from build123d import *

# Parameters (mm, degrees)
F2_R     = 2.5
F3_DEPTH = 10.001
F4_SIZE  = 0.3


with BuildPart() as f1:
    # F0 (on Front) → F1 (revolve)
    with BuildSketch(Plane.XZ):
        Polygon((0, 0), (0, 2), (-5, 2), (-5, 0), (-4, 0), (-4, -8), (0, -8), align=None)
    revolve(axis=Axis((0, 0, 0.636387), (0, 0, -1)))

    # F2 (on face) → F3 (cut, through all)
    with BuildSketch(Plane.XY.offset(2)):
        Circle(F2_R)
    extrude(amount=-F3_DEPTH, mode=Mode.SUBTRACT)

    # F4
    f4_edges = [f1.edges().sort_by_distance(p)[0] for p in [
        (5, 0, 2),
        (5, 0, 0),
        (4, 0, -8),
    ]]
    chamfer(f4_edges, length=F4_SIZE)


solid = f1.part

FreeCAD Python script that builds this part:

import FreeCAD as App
import Part
import Sketcher
from FreeCAD import Vector


def edges_at(feature, points):
    """Names of the edges that pass closest to the given points."""
    edges = feature.Shape.Edges
    near = lambda p: min(range(len(edges)), key=lambda i: edges[i].distToShape(Part.Vertex(*p))[0])
    return sorted({f"Edge{near(p) + 1}" for p in points})

doc = App.newDocument("Part")
body = doc.addObject("PartDesign::Body", "Body")

# Sketch on XZ plane
sketch1 = body.newObject("Sketcher::SketchObject", "Sketch")
sketch1.AttachmentSupport = (doc.getObject("XZ_Plane"), [""])
sketch1.MapMode = "FlatFace"
sketch1.addGeometry(Part.LineSegment(Vector(0, 2, 0), Vector(-5, 2, 0)), False)
sketch1.addGeometry(Part.LineSegment(Vector(-5, 2, 0), Vector(-5, 0, 0)), False)
sketch1.addGeometry(Part.LineSegment(Vector(-5, 0, 0), Vector(-4, 0, 0)), False)
sketch1.addGeometry(Part.LineSegment(Vector(-4, 0, 0), Vector(-4, -8, 0)), False)
sketch1.addGeometry(Part.LineSegment(Vector(-4, -8, 0), Vector(0, -8, 0)), False)
sketch1.addGeometry(Part.LineSegment(Vector(0, -8, 0), Vector(0, 2, 0)), False)
sketch1.addConstraint(Sketcher.Constraint("Coincident", 0, 2, 1, 1))
sketch1.addConstraint(Sketcher.Constraint("Coincident", 1, 2, 2, 1))
sketch1.addConstraint(Sketcher.Constraint("Coincident", 2, 2, 3, 1))
sketch1.addConstraint(Sketcher.Constraint("Coincident", 3, 2, 4, 1))
sketch1.addConstraint(Sketcher.Constraint("Coincident", 4, 2, 5, 1))
sketch1.addConstraint(Sketcher.Constraint("Coincident", 5, 2, 0, 1))
sketch1.addConstraint(Sketcher.Constraint("Horizontal", 0))
sketch1.addConstraint(Sketcher.Constraint("Vertical", 1))
sketch1.addConstraint(Sketcher.Constraint("Horizontal", 2))
sketch1.addConstraint(Sketcher.Constraint("Vertical", 3))
sketch1.addConstraint(Sketcher.Constraint("Horizontal", 4))
sketch1.addConstraint(Sketcher.Constraint("Vertical", 5))
sketch1.addConstraint(Sketcher.Constraint("PointOnObject", 1, 2, -1))
sketch1.addConstraint(Sketcher.Constraint("PointOnObject", 4, 2, -2))
sketch1.addConstraint(Sketcher.Constraint("DistanceX", 0, 2, 0, 1, 5.0))
sketch1.addConstraint(Sketcher.Constraint("DistanceX", 2, 1, 2, 2, 1.0))
sketch1.addConstraint(Sketcher.Constraint("DistanceY", 1, 2, 1, 1, 2.0))
sketch1.addConstraint(Sketcher.Constraint("DistanceY", 3, 2, 3, 1, 8.0))
revolution = body.newObject("PartDesign::Revolution", "Revolution")
revolution.Profile = sketch1
revolution.ReferenceAxis = (sketch1, ["V_Axis"])
revolution.Angle = 360

# Sketch on XY plane
sketch2 = body.newObject("Sketcher::SketchObject", "Sketch001")
sketch2.AttachmentSupport = (doc.getObject("XY_Plane"), [""])
sketch2.MapMode = "FlatFace"
sketch2.AttachmentOffset = App.Placement(Vector(0, 0, 2), App.Rotation())
sketch2.addGeometry(Part.Circle(Vector(0, 0, 0), Vector(0, 0, 1), 2.5), False)
sketch2.addConstraint(Sketcher.Constraint("Coincident", 0, 3, -1, 1))
sketch2.addConstraint(Sketcher.Constraint("Diameter", 0, 5.0))
pocket1 = body.newObject("PartDesign::Pocket", "Pocket")
pocket1.Profile = sketch2
pocket1.Type = "ThroughAll"
doc.recompute()

chamfer = body.newObject("PartDesign::Chamfer", "Chamfer")
chamfer.Base = (pocket1, edges_at(pocket1, [(5, 0, 2), (5, 0, 0), (4, 0, -8)]))
chamfer.Size = 0.3

doc.recompute()
